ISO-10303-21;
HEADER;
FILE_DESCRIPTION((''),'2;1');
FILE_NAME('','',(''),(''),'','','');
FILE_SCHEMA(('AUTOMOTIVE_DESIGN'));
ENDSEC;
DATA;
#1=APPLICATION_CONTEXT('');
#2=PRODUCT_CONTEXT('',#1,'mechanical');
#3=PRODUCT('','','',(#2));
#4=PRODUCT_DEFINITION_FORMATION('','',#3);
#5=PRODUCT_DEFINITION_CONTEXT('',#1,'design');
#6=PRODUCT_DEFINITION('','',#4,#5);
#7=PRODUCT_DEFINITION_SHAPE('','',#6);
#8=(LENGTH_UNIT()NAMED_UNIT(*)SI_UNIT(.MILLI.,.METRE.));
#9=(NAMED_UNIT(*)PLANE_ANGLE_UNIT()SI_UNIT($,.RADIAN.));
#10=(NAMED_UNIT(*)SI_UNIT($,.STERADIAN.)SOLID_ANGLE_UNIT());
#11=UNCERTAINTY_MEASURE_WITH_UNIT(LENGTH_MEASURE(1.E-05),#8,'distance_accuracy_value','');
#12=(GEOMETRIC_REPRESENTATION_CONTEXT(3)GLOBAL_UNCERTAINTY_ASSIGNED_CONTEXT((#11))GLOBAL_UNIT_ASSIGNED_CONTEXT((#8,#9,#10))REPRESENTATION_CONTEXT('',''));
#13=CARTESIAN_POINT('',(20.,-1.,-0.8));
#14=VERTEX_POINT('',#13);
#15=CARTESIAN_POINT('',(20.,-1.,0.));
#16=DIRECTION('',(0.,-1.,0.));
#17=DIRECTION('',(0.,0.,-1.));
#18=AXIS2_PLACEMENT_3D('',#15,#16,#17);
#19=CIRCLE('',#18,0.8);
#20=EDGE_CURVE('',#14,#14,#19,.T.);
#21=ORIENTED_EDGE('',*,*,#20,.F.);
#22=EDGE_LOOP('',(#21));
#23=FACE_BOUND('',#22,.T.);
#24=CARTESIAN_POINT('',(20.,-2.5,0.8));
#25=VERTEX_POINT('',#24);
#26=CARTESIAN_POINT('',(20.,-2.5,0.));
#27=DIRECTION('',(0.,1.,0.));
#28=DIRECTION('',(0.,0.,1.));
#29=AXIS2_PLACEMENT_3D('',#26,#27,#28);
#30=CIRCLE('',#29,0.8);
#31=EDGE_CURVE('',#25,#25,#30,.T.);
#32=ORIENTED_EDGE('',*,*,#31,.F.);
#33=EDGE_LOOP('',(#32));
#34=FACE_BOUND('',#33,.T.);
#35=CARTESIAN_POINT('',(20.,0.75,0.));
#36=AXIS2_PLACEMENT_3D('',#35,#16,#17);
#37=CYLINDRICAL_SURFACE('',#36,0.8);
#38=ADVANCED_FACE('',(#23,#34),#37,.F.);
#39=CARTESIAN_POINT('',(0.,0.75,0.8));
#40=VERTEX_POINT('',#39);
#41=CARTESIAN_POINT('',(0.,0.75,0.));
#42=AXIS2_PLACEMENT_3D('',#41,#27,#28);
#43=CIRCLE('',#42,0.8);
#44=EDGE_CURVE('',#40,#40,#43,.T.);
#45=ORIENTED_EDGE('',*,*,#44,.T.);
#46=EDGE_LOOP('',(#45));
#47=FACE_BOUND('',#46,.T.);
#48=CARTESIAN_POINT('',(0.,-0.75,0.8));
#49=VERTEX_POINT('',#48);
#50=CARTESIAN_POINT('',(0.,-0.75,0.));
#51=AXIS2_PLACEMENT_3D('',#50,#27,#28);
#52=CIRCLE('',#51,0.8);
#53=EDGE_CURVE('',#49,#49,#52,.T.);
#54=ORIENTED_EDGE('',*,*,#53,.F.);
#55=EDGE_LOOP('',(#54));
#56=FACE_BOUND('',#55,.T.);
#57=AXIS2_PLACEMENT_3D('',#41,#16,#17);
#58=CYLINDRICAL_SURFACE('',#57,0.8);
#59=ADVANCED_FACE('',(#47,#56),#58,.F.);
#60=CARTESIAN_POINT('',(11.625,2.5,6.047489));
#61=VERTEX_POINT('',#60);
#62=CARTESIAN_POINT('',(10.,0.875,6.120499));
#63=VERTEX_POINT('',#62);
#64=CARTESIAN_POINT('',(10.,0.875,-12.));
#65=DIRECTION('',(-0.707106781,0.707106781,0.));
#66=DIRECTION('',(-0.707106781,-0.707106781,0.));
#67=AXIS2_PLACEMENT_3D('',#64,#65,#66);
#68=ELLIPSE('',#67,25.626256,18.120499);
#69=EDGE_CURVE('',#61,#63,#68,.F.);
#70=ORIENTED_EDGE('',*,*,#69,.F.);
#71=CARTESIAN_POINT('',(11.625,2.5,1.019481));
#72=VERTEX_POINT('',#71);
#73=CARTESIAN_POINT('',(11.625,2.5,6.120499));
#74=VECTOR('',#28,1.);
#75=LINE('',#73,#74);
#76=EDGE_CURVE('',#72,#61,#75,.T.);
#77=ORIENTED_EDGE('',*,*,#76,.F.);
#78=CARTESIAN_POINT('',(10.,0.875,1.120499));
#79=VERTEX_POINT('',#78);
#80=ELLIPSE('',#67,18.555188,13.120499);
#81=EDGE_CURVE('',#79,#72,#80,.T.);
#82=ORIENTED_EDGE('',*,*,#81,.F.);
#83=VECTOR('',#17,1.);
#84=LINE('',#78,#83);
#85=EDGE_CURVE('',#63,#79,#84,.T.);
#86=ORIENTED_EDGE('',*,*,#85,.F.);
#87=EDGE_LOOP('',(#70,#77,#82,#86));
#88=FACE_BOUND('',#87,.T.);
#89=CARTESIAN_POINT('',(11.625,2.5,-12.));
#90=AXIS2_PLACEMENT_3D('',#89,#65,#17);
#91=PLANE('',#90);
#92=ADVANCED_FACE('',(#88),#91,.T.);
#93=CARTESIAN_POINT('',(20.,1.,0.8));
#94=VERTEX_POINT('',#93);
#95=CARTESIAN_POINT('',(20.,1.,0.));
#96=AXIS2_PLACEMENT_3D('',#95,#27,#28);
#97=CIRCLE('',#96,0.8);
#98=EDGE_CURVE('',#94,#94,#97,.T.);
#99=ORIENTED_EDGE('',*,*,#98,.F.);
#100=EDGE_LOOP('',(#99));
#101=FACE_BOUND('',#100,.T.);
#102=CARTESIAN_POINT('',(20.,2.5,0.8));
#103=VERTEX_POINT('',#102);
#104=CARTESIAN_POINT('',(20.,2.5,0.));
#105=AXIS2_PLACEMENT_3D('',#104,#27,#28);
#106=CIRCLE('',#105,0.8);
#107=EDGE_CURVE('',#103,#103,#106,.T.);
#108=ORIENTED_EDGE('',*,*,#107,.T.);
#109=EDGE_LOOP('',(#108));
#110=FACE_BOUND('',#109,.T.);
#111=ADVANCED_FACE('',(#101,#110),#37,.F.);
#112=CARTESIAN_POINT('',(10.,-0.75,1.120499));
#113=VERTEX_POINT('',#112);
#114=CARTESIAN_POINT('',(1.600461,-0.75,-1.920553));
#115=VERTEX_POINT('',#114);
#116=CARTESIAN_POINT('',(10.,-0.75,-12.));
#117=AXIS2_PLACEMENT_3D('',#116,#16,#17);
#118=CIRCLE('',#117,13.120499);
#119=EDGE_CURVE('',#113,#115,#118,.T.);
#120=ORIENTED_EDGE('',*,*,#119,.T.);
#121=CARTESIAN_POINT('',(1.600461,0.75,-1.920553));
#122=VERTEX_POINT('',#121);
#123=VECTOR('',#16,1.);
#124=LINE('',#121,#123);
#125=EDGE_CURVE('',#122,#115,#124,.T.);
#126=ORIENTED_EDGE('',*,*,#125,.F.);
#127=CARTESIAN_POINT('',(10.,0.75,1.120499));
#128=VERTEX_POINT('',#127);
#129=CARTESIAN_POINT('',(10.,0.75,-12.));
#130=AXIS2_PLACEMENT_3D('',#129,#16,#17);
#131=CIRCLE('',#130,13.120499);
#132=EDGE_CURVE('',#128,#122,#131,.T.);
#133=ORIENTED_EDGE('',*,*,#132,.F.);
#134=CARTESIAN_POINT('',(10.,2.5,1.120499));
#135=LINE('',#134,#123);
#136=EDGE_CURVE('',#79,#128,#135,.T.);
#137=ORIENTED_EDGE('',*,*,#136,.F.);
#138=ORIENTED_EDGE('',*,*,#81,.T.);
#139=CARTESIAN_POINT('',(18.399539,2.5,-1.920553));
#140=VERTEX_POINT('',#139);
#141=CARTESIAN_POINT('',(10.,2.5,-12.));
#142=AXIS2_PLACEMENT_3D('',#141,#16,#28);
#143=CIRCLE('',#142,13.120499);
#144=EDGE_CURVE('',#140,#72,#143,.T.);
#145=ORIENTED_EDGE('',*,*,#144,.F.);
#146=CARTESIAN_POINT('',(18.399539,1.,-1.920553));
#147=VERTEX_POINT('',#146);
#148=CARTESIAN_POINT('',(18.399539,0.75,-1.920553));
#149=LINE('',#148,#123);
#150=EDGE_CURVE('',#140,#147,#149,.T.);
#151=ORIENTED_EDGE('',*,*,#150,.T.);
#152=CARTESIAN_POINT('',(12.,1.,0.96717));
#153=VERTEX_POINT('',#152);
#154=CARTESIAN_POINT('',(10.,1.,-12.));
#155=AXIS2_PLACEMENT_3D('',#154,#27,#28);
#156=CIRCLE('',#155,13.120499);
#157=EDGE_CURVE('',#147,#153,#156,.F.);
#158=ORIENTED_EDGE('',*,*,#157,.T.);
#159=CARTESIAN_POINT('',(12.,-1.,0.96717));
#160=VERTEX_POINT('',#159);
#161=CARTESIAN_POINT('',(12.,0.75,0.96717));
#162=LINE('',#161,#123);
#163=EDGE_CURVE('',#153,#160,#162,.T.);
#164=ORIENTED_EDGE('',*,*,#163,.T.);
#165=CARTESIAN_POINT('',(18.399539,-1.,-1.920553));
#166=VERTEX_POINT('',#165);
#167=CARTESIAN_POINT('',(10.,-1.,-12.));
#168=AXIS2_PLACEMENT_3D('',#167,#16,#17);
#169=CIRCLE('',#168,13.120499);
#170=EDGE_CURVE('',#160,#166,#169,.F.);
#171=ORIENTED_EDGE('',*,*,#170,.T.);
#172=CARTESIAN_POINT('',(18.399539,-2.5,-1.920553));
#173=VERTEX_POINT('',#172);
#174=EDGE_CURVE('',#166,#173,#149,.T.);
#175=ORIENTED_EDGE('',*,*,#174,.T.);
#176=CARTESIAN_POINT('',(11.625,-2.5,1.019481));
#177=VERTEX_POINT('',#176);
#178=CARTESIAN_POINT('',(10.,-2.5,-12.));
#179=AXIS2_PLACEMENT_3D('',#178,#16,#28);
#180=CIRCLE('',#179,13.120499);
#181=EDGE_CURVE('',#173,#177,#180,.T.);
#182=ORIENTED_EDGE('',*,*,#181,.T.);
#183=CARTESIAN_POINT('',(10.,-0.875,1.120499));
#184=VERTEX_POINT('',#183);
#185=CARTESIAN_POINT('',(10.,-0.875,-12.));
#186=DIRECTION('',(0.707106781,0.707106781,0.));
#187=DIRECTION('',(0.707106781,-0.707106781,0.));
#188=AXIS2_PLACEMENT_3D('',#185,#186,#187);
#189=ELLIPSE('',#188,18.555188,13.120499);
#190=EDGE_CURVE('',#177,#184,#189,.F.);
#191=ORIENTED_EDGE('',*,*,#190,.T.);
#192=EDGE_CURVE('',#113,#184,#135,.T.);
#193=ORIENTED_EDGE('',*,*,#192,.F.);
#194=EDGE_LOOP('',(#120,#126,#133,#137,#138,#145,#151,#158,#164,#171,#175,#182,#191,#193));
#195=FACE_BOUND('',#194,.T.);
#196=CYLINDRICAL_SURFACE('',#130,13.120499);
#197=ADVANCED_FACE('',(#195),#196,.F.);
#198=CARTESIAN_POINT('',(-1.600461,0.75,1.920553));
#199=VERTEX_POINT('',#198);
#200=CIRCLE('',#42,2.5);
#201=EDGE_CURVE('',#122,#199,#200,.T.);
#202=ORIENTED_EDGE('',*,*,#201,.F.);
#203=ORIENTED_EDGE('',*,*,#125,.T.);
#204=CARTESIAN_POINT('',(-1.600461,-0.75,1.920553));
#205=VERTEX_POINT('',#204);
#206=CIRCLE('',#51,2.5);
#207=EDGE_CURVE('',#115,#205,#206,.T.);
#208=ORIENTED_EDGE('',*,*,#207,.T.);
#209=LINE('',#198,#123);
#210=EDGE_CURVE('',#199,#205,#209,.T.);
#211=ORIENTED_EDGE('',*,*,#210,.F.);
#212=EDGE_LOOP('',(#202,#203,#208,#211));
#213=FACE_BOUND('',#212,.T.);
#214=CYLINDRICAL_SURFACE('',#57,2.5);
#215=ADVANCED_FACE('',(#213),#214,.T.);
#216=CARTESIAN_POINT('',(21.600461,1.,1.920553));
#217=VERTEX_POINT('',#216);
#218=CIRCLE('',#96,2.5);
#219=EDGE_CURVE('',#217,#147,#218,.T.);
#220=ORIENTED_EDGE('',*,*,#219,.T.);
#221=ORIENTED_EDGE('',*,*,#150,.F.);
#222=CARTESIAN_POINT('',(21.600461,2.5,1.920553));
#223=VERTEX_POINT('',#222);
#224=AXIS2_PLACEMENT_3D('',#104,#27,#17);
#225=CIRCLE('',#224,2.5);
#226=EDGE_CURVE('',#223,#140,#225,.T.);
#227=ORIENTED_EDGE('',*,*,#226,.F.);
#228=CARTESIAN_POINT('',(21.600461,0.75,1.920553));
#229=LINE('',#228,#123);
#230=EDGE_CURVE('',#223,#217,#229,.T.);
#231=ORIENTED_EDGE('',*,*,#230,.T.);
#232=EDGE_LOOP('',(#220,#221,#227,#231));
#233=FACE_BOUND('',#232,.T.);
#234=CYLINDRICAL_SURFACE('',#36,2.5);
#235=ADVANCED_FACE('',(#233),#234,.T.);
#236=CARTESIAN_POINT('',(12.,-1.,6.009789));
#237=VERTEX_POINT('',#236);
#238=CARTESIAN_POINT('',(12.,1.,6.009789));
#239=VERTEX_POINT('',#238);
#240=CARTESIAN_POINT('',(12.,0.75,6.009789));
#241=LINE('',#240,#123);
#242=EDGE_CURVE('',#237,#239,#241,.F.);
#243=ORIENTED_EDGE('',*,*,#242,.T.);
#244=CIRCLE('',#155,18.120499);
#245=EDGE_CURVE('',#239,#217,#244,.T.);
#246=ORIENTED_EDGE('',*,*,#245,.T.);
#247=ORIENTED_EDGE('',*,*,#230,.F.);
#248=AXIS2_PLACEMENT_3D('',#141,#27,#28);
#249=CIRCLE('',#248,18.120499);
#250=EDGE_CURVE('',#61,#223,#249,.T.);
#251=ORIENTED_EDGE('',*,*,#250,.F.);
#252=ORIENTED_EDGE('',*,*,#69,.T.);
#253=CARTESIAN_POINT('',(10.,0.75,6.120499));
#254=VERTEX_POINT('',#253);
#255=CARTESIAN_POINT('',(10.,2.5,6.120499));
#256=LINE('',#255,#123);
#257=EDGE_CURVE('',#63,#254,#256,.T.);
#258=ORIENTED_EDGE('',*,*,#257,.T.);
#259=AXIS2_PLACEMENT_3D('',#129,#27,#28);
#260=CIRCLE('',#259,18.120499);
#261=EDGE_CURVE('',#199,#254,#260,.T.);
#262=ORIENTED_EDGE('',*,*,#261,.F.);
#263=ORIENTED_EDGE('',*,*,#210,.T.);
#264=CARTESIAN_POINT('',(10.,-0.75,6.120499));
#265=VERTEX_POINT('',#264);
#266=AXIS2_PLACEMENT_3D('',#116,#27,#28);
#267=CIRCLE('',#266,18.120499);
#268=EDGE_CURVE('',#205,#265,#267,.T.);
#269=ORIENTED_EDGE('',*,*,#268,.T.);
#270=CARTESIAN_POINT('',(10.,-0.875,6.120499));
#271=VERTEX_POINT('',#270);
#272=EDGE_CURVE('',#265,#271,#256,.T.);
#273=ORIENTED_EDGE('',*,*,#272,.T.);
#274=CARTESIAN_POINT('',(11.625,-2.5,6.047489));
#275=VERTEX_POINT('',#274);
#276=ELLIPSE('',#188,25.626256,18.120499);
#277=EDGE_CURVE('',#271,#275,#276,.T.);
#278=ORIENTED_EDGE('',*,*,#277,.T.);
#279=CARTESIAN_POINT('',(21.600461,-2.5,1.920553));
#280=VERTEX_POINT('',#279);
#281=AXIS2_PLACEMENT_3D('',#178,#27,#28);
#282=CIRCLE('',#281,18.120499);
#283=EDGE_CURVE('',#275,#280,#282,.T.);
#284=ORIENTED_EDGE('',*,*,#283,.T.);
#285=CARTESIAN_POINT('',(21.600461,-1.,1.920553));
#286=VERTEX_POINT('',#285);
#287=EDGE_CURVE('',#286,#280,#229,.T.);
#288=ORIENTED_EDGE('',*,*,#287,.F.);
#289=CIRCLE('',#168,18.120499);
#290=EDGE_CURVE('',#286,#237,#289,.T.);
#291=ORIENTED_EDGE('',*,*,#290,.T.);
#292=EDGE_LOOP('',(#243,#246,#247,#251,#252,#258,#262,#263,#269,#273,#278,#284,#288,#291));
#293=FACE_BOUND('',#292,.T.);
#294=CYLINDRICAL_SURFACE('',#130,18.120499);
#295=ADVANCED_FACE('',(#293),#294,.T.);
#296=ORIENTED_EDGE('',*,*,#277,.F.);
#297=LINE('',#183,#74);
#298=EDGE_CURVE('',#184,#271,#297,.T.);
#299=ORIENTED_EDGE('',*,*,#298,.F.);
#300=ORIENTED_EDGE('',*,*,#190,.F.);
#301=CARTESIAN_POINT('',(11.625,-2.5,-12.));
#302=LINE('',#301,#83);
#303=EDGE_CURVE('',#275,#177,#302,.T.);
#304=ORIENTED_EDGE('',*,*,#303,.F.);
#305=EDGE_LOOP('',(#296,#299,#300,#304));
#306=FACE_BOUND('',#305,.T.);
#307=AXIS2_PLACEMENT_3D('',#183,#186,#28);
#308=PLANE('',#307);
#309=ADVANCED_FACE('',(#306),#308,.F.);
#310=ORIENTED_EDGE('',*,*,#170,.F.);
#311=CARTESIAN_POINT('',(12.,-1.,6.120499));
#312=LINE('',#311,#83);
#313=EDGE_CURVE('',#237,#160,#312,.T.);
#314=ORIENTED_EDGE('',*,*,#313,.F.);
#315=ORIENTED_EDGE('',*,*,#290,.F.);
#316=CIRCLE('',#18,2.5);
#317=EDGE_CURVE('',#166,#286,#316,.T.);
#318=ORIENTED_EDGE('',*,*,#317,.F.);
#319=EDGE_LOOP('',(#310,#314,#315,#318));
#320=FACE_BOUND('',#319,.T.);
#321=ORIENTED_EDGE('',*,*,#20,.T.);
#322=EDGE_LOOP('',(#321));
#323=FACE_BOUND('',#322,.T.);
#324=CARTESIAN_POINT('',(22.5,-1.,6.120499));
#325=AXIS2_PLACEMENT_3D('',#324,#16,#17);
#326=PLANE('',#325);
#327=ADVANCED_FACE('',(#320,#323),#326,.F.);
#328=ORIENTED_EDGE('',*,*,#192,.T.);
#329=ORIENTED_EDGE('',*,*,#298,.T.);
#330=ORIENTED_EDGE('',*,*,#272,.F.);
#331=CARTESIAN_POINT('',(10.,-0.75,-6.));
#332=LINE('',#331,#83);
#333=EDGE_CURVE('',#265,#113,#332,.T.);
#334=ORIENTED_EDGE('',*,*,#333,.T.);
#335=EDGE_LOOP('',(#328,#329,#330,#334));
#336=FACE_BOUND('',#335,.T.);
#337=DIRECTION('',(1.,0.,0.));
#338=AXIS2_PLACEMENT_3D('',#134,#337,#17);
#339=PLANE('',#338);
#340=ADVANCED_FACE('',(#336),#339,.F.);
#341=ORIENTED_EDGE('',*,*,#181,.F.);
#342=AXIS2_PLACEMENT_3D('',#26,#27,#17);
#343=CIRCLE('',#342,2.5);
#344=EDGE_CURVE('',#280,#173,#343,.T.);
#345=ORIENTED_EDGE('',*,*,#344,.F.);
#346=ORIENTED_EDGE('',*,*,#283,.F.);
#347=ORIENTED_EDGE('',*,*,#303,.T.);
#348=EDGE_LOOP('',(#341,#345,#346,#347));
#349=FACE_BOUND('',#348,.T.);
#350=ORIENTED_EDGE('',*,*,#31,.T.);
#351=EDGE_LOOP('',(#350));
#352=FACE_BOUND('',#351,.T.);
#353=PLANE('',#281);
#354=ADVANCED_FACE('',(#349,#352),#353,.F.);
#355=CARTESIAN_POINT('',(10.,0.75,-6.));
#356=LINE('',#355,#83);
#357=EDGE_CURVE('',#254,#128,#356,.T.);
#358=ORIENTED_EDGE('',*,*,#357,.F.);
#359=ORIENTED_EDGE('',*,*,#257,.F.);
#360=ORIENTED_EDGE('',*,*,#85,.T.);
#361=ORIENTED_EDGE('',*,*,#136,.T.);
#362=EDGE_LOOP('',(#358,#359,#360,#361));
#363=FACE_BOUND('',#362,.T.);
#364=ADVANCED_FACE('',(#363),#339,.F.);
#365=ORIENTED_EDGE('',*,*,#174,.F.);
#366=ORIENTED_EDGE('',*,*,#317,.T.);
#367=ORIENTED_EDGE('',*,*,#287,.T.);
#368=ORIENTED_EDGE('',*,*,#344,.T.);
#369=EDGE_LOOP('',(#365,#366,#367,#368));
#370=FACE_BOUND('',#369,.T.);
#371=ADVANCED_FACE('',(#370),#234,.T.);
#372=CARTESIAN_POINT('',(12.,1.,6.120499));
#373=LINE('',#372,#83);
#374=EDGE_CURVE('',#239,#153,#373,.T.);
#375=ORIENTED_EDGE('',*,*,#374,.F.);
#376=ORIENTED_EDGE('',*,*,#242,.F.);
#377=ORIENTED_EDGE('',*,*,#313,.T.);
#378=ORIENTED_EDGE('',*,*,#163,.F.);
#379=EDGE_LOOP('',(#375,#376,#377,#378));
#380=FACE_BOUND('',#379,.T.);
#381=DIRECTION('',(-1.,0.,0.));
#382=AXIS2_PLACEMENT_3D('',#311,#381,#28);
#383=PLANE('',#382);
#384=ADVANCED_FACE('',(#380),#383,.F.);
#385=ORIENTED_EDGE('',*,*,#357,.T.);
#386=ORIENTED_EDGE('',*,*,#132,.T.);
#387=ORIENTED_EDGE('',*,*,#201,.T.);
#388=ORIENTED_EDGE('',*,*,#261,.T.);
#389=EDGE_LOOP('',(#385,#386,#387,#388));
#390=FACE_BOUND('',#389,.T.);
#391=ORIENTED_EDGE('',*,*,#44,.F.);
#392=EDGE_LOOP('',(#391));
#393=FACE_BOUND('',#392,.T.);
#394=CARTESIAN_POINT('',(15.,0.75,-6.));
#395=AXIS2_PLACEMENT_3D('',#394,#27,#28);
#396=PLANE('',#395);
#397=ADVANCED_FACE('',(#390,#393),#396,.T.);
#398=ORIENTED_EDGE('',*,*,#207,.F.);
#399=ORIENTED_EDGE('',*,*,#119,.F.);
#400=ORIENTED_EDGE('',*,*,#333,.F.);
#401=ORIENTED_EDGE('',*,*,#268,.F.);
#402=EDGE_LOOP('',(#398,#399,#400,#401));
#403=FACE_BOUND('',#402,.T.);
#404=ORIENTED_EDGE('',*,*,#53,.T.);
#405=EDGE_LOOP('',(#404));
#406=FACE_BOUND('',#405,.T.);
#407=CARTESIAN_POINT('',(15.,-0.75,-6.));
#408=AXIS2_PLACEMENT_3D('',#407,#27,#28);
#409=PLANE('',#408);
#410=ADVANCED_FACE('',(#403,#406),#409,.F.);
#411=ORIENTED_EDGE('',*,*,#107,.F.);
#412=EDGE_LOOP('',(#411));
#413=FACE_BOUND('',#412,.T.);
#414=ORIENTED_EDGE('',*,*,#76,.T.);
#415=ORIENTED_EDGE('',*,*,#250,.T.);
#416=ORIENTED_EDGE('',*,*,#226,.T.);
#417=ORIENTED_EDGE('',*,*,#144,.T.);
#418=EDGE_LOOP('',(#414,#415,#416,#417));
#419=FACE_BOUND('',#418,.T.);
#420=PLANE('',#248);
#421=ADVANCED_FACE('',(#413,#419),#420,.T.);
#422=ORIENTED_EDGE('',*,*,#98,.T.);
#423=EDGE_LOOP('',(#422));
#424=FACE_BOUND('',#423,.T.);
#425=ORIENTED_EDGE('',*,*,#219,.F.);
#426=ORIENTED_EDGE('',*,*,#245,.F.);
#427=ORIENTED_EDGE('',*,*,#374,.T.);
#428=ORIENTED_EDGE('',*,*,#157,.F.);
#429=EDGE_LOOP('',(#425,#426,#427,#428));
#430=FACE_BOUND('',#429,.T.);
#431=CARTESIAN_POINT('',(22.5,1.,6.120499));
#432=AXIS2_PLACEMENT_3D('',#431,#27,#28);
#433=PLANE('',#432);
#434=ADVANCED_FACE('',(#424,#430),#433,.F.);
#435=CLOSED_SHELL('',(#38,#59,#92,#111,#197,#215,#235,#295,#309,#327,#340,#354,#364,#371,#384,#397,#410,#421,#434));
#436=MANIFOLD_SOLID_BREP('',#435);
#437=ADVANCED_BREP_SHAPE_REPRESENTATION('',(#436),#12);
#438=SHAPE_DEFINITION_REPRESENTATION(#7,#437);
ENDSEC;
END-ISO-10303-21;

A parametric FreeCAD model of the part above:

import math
import FreeCAD as App
import Part
import Sketcher
from FreeCAD import Vector


def edges_at(feature, points):
    """Names of the edges that pass closest to the given points."""
    edges = feature.Shape.Edges
    near = lambda p: min(range(len(edges)), key=lambda i: edges[i].distToShape(Part.Vertex(*p))[0])
    return sorted({f"Edge{near(p) + 1}" for p in points})


def add_polygon(sketch, points):
    """Adds a closed chain of lines whose ends are joined by coincident constraints."""
    first, n = sketch.GeometryCount, len(points)
    for a, b in zip(points, points[1:] + points[:1]):
        sketch.addGeometry(Part.LineSegment(App.Vector(*a, 0), App.Vector(*b, 0)), False)
    for i in range(n):
        sketch.addConstraint(Sketcher.Constraint("Coincident", first + i, 2, first + (i + 1) % n, 1))

doc = App.newDocument("Part")
body = doc.addObject("PartDesign::Body", "Body")

# Sketch on XZ plane
sketch1 = body.newObject("Sketcher::SketchObject", "Sketch")
sketch1.AttachmentSupport = (doc.getObject("XZ_Plane"), [""])
sketch1.MapMode = "FlatFace"
sketch1.addGeometry([
    Part.ArcOfCircle(Part.Circle(Vector(0, 0, 0), Vector(0, 0, 1), 2.5), math.radians(129.805571), math.radians(309.805571)),  # 0
    Part.ArcOfCircle(Part.Circle(Vector(10, -12, 0), Vector(0, 0, 1), 18.120499), math.radians(50.194429), math.radians(129.805571)),  # 1
    Part.ArcOfCircle(Part.Circle(Vector(20, 0, 0), Vector(0, 0, 1), 2.5), math.radians(-129.805571), math.radians(50.194429)),  # 2
    Part.ArcOfCircle(Part.Circle(Vector(10, -12, 0), Vector(0, 0, 1), 13.120499), math.radians(50.194429), math.radians(129.805571)),  # 3
    Part.Circle(Vector(0, 0, 0), Vector(0, 0, 1), 0.8),  # 4
    Part.Circle(Vector(20, 0, 0), Vector(0, 0, 1), 0.8),  # 5
], False)
sketch1.addConstraint([
    Sketcher.Constraint("Tangent", 0, 1, 1, 2),
    Sketcher.Constraint("Tangent", 1, 1, 2, 2),
    Sketcher.Constraint("Tangent", 2, 1, 3, 1),
    Sketcher.Constraint("Tangent", 3, 2, 0, 2),
    Sketcher.Constraint("Coincident", 0, 3, -1, 1),
    Sketcher.Constraint("Coincident", 4, 3, -1, 1),
    Sketcher.Constraint("Coincident", 3, 3, 1, 3),
    Sketcher.Constraint("Coincident", 5, 3, 2, 3),
    Sketcher.Constraint("Equal", 4, 5),
    Sketcher.Constraint("PointOnObject", 2, 3, -1),
    Sketcher.Constraint("Diameter", 4, 1.6),
    Sketcher.Constraint("Radius", 0, 2.5),
    Sketcher.Constraint("DistanceX", -1, 1, 1, 3, 10.0),
    Sketcher.Constraint("DistanceY", 1, 3, -1, 1, 12.0),
])
pad1 = body.newObject("PartDesign::Pad", "Pad")
pad1.Profile = sketch1
pad1.Length = 1.5
pad1.Midplane = True

# Sketch on XZ plane
sketch2 = body.newObject("Sketcher::SketchObject", "Sketch001")
sketch2.AttachmentSupport = (doc.getObject("XZ_Plane"), [""])
sketch2.MapMode = "FlatFace"
sketch2.addGeometry([
    Part.LineSegment(Vector(10, 1.120499, 0), Vector(10, 6.120499, 0)),  # 0
    Part.ArcOfCircle(Part.Circle(Vector(10, -12, 0), Vector(0, 0, 1), 18.120499), math.radians(50.194429), math.radians(90)),  # 1
    Part.ArcOfCircle(Part.Circle(Vector(20, 0, 0), Vector(0, 0, 1), 2.5), math.radians(-129.805571), math.radians(50.194429)),  # 2
    Part.ArcOfCircle(Part.Circle(Vector(10, -12, 0), Vector(0, 0, 1), 13.120499), math.radians(50.194429), math.radians(90)),  # 3
    Part.Circle(Vector(20, 0, 0), Vector(0, 0, 1), 0.8),  # 4
], False)
sketch2.addConstraint([
    Sketcher.Constraint("Coincident", 0, 2, 1, 2),
    Sketcher.Constraint("Tangent", 1, 1, 2, 2),
    Sketcher.Constraint("Tangent", 2, 1, 3, 1),
    Sketcher.Constraint("Coincident", 3, 2, 0, 1),
    Sketcher.Constraint("Vertical", 0),
    Sketcher.Constraint("Coincident", 3, 3, 1, 3),
    Sketcher.Constraint("Coincident", 4, 3, 2, 3),
    Sketcher.Constraint("PointOnObject", 2, 3, -1),
    Sketcher.Constraint("Vertical", 3, 3, 0, 2),
    Sketcher.Constraint("Diameter", 4, 1.6),
    Sketcher.Constraint("Radius", 2, 2.5),
    Sketcher.Constraint("DistanceX", -1, 1, 1, 3, 10.0),
    Sketcher.Constraint("DistanceY", 1, 3, -1, 1, 12.0),
    Sketcher.Constraint("DistanceX", -1, 1, 2, 3, 20.0),
])
pad2 = body.newObject("PartDesign::Pad", "Pad001")
pad2.Profile = sketch2
pad2.Length = 5
pad2.Midplane = True
doc.recompute()

chamfer = body.newObject("PartDesign::Chamfer", "Chamfer")
chamfer.Base = (pad2, edges_at(pad2, [(10, -2.5, 3.62), (10, 2.5, 3.62)]))
chamfer.Size = 1.625

# Sketch on XY plane
sketch3 = body.newObject("Sketcher::SketchObject", "Sketch002")
sketch3.AttachmentSupport = (doc.getObject("XY_Plane"), [""])
sketch3.MapMode = "FlatFace"
add_polygon(sketch3, [(22.5, 1), (22.5, -1), (12, -1), (12, 1)])  # lines 0-3
sketch3.addConstraint([
    Sketcher.Constraint("Vertical", 0),
    Sketcher.Constraint("Horizontal", 1),
    Sketcher.Constraint("Vertical", 2),
    Sketcher.Constraint("Horizontal", 3),
    Sketcher.Constraint("DistanceY", 0, 2, 0, 1, 2.0),
    Sketcher.Constraint("DistanceX", 1, 2, 1, 1, 10.5),
    Sketcher.Constraint("DistanceY", 0, 2, -1, 1, 1.0),
    Sketcher.Constraint("DistanceX", -1, 1, 1, 2, 12.0),
])
pocket1 = body.newObject("PartDesign::Pocket", "Pocket")
pocket1.Profile = sketch3
pocket1.Type = "ThroughAll"
pocket1.Midplane = True

doc.recompute()
